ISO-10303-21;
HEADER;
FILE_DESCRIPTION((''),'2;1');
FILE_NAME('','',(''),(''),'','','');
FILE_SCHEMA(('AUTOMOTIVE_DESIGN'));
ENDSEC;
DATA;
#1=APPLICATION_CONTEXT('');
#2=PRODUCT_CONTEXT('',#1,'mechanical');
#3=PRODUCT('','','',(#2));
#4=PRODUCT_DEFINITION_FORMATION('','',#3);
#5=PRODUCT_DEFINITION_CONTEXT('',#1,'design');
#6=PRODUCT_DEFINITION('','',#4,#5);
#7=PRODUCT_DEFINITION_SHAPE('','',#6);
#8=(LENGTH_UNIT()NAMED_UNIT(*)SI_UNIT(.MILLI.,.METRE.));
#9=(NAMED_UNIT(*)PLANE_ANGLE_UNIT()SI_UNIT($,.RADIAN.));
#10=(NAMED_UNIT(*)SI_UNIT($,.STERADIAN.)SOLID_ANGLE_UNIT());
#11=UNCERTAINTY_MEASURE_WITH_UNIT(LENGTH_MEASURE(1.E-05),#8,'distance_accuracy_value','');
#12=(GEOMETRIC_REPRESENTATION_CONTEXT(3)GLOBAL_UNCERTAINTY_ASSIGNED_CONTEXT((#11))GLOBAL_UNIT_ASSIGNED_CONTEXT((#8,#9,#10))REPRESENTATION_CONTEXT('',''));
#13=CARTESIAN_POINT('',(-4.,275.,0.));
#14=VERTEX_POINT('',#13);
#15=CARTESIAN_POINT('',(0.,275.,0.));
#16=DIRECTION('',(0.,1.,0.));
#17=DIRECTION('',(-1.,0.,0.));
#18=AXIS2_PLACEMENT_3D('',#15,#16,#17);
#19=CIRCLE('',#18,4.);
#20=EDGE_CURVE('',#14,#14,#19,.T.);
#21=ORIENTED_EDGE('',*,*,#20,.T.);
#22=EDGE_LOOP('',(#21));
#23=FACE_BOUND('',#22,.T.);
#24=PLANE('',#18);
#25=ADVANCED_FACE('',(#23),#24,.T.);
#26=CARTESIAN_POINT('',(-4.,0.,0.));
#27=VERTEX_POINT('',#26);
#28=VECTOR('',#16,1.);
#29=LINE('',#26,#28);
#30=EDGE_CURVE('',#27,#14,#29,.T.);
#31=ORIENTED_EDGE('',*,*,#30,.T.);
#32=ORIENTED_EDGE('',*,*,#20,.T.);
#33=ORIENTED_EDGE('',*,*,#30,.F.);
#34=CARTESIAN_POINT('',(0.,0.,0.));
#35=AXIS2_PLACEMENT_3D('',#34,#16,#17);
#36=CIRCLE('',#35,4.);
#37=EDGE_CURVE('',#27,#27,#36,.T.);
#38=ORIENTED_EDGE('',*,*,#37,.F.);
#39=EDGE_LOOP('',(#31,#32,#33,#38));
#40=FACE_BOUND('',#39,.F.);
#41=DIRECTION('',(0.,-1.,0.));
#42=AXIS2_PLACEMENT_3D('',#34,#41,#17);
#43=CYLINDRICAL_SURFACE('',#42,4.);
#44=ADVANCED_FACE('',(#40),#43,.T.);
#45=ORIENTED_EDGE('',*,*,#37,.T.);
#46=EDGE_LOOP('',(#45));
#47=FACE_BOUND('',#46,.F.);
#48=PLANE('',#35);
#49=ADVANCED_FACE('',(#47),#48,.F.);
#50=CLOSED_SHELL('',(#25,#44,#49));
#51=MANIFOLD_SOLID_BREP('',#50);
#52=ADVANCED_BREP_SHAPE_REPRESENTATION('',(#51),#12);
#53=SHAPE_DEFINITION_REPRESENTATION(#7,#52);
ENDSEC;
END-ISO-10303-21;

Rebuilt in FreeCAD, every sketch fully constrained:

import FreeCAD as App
import Part
import Sketcher
from FreeCAD import Vector
Q = App.Units.Quantity

doc = App.newDocument("Part")
body = doc.addObject("PartDesign::Body", "Body")

sketch1 = body.newObject("Sketcher::SketchObject", "Sketch")
sketch1.AttachmentSupport = (doc.getObject("XZ_Plane"), [""])
sketch1.MapMode = "FlatFace"
sketch1.addGeometry(Part.Circle(Vector(0, 0, 0), Vector(0, 0, 1), 4), False)
sketch1.addConstraint([
    Sketcher.Constraint("Coincident", 0, 3, -1, 1),
    Sketcher.Constraint("Diameter", 0, Q("8 mm")),
])
pad1 = body.newObject("PartDesign::Pad", "Pad")
pad1.Profile = sketch1
pad1.Length = 275
pad1.Reversed = True

doc.recompute()
